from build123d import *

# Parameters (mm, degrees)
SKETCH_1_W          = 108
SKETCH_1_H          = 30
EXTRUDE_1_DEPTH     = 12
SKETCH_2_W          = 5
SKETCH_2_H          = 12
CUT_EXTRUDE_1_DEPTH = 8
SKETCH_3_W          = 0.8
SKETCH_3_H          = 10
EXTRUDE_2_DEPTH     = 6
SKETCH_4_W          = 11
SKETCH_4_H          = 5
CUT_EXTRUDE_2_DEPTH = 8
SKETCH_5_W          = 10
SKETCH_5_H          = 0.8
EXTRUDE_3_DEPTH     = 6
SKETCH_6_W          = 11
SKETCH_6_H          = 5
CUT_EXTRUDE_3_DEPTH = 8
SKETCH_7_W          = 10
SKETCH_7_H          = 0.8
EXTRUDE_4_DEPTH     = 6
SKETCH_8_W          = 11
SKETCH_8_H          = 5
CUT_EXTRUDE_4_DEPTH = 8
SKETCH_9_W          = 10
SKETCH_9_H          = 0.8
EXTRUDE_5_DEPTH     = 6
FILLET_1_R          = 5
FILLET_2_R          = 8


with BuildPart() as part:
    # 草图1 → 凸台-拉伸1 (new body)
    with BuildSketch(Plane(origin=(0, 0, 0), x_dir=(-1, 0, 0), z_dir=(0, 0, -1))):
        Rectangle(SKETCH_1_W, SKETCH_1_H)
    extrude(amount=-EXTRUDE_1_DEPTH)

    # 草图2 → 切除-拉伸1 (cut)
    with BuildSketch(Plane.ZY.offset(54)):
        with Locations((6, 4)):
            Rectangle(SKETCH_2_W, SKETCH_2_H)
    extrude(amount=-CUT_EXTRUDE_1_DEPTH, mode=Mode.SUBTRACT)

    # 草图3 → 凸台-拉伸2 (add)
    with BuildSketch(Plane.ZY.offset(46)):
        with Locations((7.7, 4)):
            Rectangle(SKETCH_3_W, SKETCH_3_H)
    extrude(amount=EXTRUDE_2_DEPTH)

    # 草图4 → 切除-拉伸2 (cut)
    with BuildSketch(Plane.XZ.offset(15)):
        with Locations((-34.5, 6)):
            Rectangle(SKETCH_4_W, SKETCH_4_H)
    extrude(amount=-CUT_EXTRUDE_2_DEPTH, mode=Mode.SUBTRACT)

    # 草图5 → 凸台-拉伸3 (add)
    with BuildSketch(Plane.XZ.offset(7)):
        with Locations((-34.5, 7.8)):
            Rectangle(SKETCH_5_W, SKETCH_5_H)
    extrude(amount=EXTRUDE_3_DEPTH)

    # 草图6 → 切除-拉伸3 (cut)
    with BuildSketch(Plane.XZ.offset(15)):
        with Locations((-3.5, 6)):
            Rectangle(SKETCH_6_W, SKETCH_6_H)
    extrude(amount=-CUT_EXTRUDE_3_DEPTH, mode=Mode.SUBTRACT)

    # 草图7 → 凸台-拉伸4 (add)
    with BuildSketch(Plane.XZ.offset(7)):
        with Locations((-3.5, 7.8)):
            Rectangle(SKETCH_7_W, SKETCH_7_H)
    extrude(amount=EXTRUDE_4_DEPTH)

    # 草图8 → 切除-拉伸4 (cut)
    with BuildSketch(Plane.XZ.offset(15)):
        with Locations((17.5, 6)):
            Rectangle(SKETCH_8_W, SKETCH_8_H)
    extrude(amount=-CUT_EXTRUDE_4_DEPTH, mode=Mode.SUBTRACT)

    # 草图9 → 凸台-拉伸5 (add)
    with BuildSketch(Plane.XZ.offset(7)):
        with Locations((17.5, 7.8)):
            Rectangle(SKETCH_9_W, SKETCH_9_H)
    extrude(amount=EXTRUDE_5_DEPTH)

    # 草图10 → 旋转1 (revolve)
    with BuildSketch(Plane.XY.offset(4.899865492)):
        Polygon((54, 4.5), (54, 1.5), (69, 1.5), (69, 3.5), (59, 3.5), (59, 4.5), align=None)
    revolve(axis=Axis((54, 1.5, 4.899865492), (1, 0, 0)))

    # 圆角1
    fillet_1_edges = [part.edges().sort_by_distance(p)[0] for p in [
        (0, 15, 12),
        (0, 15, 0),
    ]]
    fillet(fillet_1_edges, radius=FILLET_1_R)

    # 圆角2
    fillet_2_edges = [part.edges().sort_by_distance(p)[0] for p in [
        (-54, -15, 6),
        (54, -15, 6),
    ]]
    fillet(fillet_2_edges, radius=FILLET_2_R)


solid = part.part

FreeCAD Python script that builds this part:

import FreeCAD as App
import Part
import Sketcher
from FreeCAD import Vector
Q = App.Units.Quantity


def edges_at(feature, points):
    """Names of the edges that pass closest to the given points."""
    edges = feature.Shape.Edges
    near = lambda p: min(range(len(edges)), key=lambda i: edges[i].distToShape(Part.Vertex(*p))[0])
    return sorted({f"Edge{near(p) + 1}" for p in points})

doc = App.newDocument("Part")
params = doc.addObject("Spreadsheet::Sheet", "Params")
for row, (alias, value) in enumerate([
    ("sketch1_width", "108 mm"),
    ("sketch1_height", "30 mm"),
    ("pad1_length", "12 mm"),
    ("sketch2_width", "12 mm"),
    ("sketch2_height", "5 mm"),
    ("pocket1_length", "8 mm"),
    ("sketch3_width", "10 mm"),
    ("sketch3_height", "0.8 mm"),
    ("pad2_length", "6 mm"),
    ("sketch4_width", "11 mm"),
    ("sketch4_height", "5 mm"),
    ("pocket2_length", "8 mm"),
    ("sketch5_width", "10 mm"),
    ("sketch5_height", "0.8 mm"),
    ("pad3_length", "6 mm"),
    ("sketch6_width", "11 mm"),
    ("sketch6_height", "5 mm"),
    ("pocket3_length", "8 mm"),
    ("sketch7_width", "10 mm"),
    ("sketch7_height", "0.8 mm"),
    ("pad4_length", "6 mm"),
    ("sketch8_width", "11 mm"),
    ("sketch8_height", "5 mm"),
    ("pocket4_length", "8 mm"),
    ("sketch9_width", "10 mm"),
    ("sketch9_height", "0.8 mm"),
    ("pad5_length", "6 mm"),
    ("sketch10_width", "15 mm"),
    ("sketch10_width2", "10 mm"),
    ("sketch10_height", "3 mm"),
    ("sketch10_height2", "2 mm"),
    ("revolution_angle", "360 deg"),
    ("fillet_radius", "5 mm"),
    ("fillet2_radius", "8 mm"),
], start=1):
    params.set(f"A{row}", alias)
    params.set(f"B{row}", "=" + value)
    params.setAlias(f"B{row}", alias)

body = doc.addObject("PartDesign::Body", "Body")

# Sketch on XY plane
sketch1 = body.newObject("Sketcher::SketchObject", "Sketch")
sketch1.AttachmentSupport = (doc.getObject("XY_Plane"), [""])
sketch1.MapMode = "FlatFace"
sketch1.addGeometry(Part.LineSegment(Vector(54, 15, 0), Vector(54, -15, 0)), False)
sketch1.addGeometry(Part.LineSegment(Vector(54, -15, 0), Vector(-54, -15, 0)), False)
sketch1.addGeometry(Part.LineSegment(Vector(-54, -15, 0), Vector(-54, 15, 0)), False)
sketch1.addGeometry(Part.LineSegment(Vector(-54, 15, 0), Vector(54, 15, 0)), False)
sketch1.addConstraint(Sketcher.Constraint("Coincident", 0, 2, 1, 1))
sketch1.addConstraint(Sketcher.Constraint("Coincident", 1, 2, 2, 1))
sketch1.addConstraint(Sketcher.Constraint("Coincident", 2, 2, 3, 1))
sketch1.addConstraint(Sketcher.Constraint("Coincident", 3, 2, 0, 1))
sketch1.addConstraint(Sketcher.Constraint("Vertical", 0))
sketch1.addConstraint(Sketcher.Constraint("Horizontal", 1))
sketch1.addConstraint(Sketcher.Constraint("Vertical", 2))
sketch1.addConstraint(Sketcher.Constraint("Horizontal", 3))
sketch1.addConstraint(Sketcher.Constraint("Symmetric", 0, 2, 2, 2, -1, 1))
sketch1.addConstraint(Sketcher.Constraint("DistanceX", 1, 2, 1, 1, Q("108 mm")))
sketch1.addConstraint(Sketcher.Constraint("DistanceY", 0, 2, 0, 1, Q("30 mm")))
sketch1.setExpression("Constraints[9]", "Params.sketch1_width")
sketch1.setExpression("Constraints[10]", "Params.sketch1_height")
pad1 = body.newObject("PartDesign::Pad", "Pad")
pad1.Profile = sketch1
pad1.setExpression("Length", "Params.pad1_length")

# Sketch on YZ plane
sketch2 = body.newObject("Sketcher::SketchObject", "Sketch001")
sketch2.AttachmentSupport = (doc.getObject("YZ_Plane"), [""])
sketch2.MapMode = "FlatFace"
sketch2.AttachmentOffset = App.Placement(Vector(0, 0, -54), App.Rotation())
sketch2.addGeometry(Part.LineSegment(Vector(10, 4, 0), Vector(-2, 4, 0)), False)
sketch2.addGeometry(Part.LineSegment(Vector(-2, 4, 0), Vector(-2, 8, 0)), False)
sketch2.addGeometry(Part.LineSegment(Vector(-2, 8, 0), Vector(10, 8, 0)), False)
sketch2.addGeometry(Part.LineSegment(Vector(10, 8, 0), Vector(10, 4, 0)), False)
sketch2.addConstraint(Sketcher.Constraint("Coincident", 0, 2, 1, 1))
sketch2.addConstraint(Sketcher.Constraint("Coincident", 1, 2, 2, 1))
sketch2.addConstraint(Sketcher.Constraint("Coincident", 2, 2, 3, 1))
sketch2.addConstraint(Sketcher.Constraint("Coincident", 3, 2, 0, 1))
sketch2.addConstraint(Sketcher.Constraint("Horizontal", 0))
sketch2.addConstraint(Sketcher.Constraint("Vertical", 1))
sketch2.addConstraint(Sketcher.Constraint("Horizontal", 2))
sketch2.addConstraint(Sketcher.Constraint("Vertical", 3))
sketch2.addConstraint(Sketcher.Constraint("DistanceX", 0, 2, 0, 1, Q("12 mm")))
sketch2.addConstraint(Sketcher.Constraint("DistanceY", 1, 1, 1, 2, Q("5 mm")))
sketch2.addConstraint(Sketcher.Constraint("DistanceX", 0, 2, -1, 1, Q("2 mm")))
sketch2.addConstraint(Sketcher.Constraint("DistanceY", -1, 1, 0, 2, Q("3.5 mm")))
sketch2.setExpression("Constraints[8]", "Params.sketch2_width")
sketch2.setExpression("Constraints[9]", "Params.sketch2_height")
pocket1 = body.newObject("PartDesign::Pocket", "Pocket")
pocket1.Profile = sketch2
pocket1.setExpression("Length", "Params.pocket1_length")
pocket1.Reversed = True

# Sketch on YZ plane
sketch3 = body.newObject("Sketcher::SketchObject", "Sketch002")
sketch3.AttachmentSupport = (doc.getObject("YZ_Plane"), [""])
sketch3.MapMode = "FlatFace"
sketch3.AttachmentOffset = App.Placement(Vector(0, 0, -46), App.Rotation())
sketch3.addGeometry(Part.LineSegment(Vector(9, 7.3, 0), Vector(-1, 7.3, 0)), False)
sketch3.addGeometry(Part.LineSegment(Vector(-1, 7.3, 0), Vector(-1, 8.1, 0)), False)
sketch3.addGeometry(Part.LineSegment(Vector(-1, 8.1, 0), Vector(9, 8.1, 0)), False)
sketch3.addGeometry(Part.LineSegment(Vector(9, 8.1, 0), Vector(9, 7.3, 0)), False)
sketch3.addConstraint(Sketcher.Constraint("Coincident", 0, 2, 1, 1))
sketch3.addConstraint(Sketcher.Constraint("Coincident", 1, 2, 2, 1))
sketch3.addConstraint(Sketcher.Constraint("Coincident", 2, 2, 3, 1))
sketch3.addConstraint(Sketcher.Constraint("Coincident", 3, 2, 0, 1))
sketch3.addConstraint(Sketcher.Constraint("Horizontal", 0))
sketch3.addConstraint(Sketcher.Constraint("Vertical", 1))
sketch3.addConstraint(Sketcher.Constraint("Horizontal", 2))
sketch3.addConstraint(Sketcher.Constraint("Vertical", 3))
sketch3.addConstraint(Sketcher.Constraint("DistanceX", 0, 2, 0, 1, Q("10 mm")))
sketch3.addConstraint(Sketcher.Constraint("DistanceY", 1, 1, 1, 2, Q("0.8 mm")))
sketch3.addConstraint(Sketcher.Constraint("DistanceX", 0, 2, -1, 1, Q("1 mm")))
sketch3.addConstraint(Sketcher.Constraint("DistanceY", -1, 1, 0, 2, Q("7.3 mm")))
sketch3.setExpression("Constraints[8]", "Params.sketch3_width")
sketch3.setExpression("Constraints[9]", "Params.sketch3_height")
pad2 = body.newObject("PartDesign::Pad", "Pad001")
pad2.Profile = sketch3
pad2.setExpression("Length", "Params.pad2_length")
pad2.Reversed = True

# Sketch on XZ plane
sketch4 = body.newObject("Sketcher::SketchObject", "Sketch003")
sketch4.AttachmentSupport = (doc.getObject("XZ_Plane"), [""])
sketch4.MapMode = "FlatFace"
sketch4.AttachmentOffset = App.Placement(Vector(0, 0, 15), App.Rotation())
sketch4.addGeometry(Part.LineSegment(Vector(-40, 8, 0), Vector(-40, 4, 0)), False)
sketch4.addGeometry(Part.LineSegment(Vector(-40, 4, 0), Vector(-29, 4, 0)), False)
sketch4.addGeometry(Part.LineSegment(Vector(-29, 4, 0), Vector(-29, 8, 0)), False)
sketch4.addGeometry(Part.LineSegment(Vector(-29, 8, 0), Vector(-40, 8, 0)), False)
sketch4.addConstraint(Sketcher.Constraint("Coincident", 0, 2, 1, 1))
sketch4.addConstraint(Sketcher.Constraint("Coincident", 1, 2, 2, 1))
sketch4.addConstraint(Sketcher.Constraint("Coincident", 2, 2, 3, 1))
sketch4.addConstraint(Sketcher.Constraint("Coincident", 3, 2, 0, 1))
sketch4.addConstraint(Sketcher.Constraint("Vertical", 0))
sketch4.addConstraint(Sketcher.Constraint("Horizontal", 1))
sketch4.addConstraint(Sketcher.Constraint("Vertical", 2))
sketch4.addConstraint(Sketcher.Constraint("Horizontal", 3))
sketch4.addConstraint(Sketcher.Constraint("DistanceX", 1, 1, 1, 2, Q("11 mm")))
sketch4.addConstraint(Sketcher.Constraint("DistanceY", 0, 2, 0, 1, Q("5 mm")))
sketch4.addConstraint(Sketcher.Constraint("DistanceX", 0, 2, -1, 1, Q("40 mm")))
sketch4.addConstraint(Sketcher.Constraint("DistanceY", -1, 1, 0, 2, Q("3.5 mm")))
sketch4.setExpression("Constraints[8]", "Params.sketch4_width")
sketch4.setExpression("Constraints[9]", "Params.sketch4_height")
pocket2 = body.newObject("PartDesign::Pocket", "Pocket001")
pocket2.Profile = sketch4
pocket2.setExpression("Length", "Params.pocket2_length")

# Sketch on XZ plane
sketch5 = body.newObject("Sketcher::SketchObject", "Sketch004")
sketch5.AttachmentSupport = (doc.getObject("XZ_Plane"), [""])
sketch5.MapMode = "FlatFace"
sketch5.AttachmentOffset = App.Placement(Vector(0, 0, 7), App.Rotation())
sketch5.addGeometry(Part.LineSegment(Vector(-39.5, 8.2, 0), Vector(-39.5, 7.4, 0)), False)
sketch5.addGeometry(Part.LineSegment(Vector(-39.5, 7.4, 0), Vector(-29.5, 7.4, 0)), False)
sketch5.addGeometry(Part.LineSegment(Vector(-29.5, 7.4, 0), Vector(-29.5, 8.2, 0)), False)
sketch5.addGeometry(Part.LineSegment(Vector(-29.5, 8.2, 0), Vector(-39.5, 8.2, 0)), False)
sketch5.addConstraint(Sketcher.Constraint("Coincident", 0, 2, 1, 1))
sketch5.addConstraint(Sketcher.Constraint("Coincident", 1, 2, 2, 1))
sketch5.addConstraint(Sketcher.Constraint("Coincident", 2, 2, 3, 1))
sketch5.addConstraint(Sketcher.Constraint("Coincident", 3, 2, 0, 1))
sketch5.addConstraint(Sketcher.Constraint("Vertical", 0))
sketch5.addConstraint(Sketcher.Constraint("Horizontal", 1))
sketch5.addConstraint(Sketcher.Constraint("Vertical", 2))
sketch5.addConstraint(Sketcher.Constraint("Horizontal", 3))
sketch5.addConstraint(Sketcher.Constraint("DistanceX", 1, 1, 1, 2, Q("10 mm")))
sketch5.addConstraint(Sketcher.Constraint("DistanceY", 0, 2, 0, 1, Q("0.8 mm")))
sketch5.addConstraint(Sketcher.Constraint("DistanceX", 0, 2, -1, 1, Q("39.5 mm")))
sketch5.addConstraint(Sketcher.Constraint("DistanceY", -1, 1, 0, 2, Q("7.4 mm")))
sketch5.setExpression("Constraints[8]", "Params.sketch5_width")
sketch5.setExpression("Constraints[9]", "Params.sketch5_height")
pad3 = body.newObject("PartDesign::Pad", "Pad002")
pad3.Profile = sketch5
pad3.setExpression("Length", "Params.pad3_length")

# Sketch on XZ plane
sketch6 = body.newObject("Sketcher::SketchObject", "Sketch005")
sketch6.AttachmentSupport = (doc.getObject("XZ_Plane"), [""])
sketch6.MapMode = "FlatFace"
sketch6.AttachmentOffset = App.Placement(Vector(0, 0, 15), App.Rotation())
sketch6.addGeometry(Part.LineSegment(Vector(-9, 8, 0), Vector(-9, 4, 0)), False)
sketch6.addGeometry(Part.LineSegment(Vector(-9, 4, 0), Vector(2, 4, 0)), False)
sketch6.addGeometry(Part.LineSegment(Vector(2, 4, 0), Vector(2, 8, 0)), False)
sketch6.addGeometry(Part.LineSegment(Vector(2, 8, 0), Vector(-9, 8, 0)), False)
sketch6.addConstraint(Sketcher.Constraint("Coincident", 0, 2, 1, 1))
sketch6.addConstraint(Sketcher.Constraint("Coincident", 1, 2, 2, 1))
sketch6.addConstraint(Sketcher.Constraint("Coincident", 2, 2, 3, 1))
sketch6.addConstraint(Sketcher.Constraint("Coincident", 3, 2, 0, 1))
sketch6.addConstraint(Sketcher.Constraint("Vertical", 0))
sketch6.addConstraint(Sketcher.Constraint("Horizontal", 1))
sketch6.addConstraint(Sketcher.Constraint("Vertical", 2))
sketch6.addConstraint(Sketcher.Constraint("Horizontal", 3))
sketch6.addConstraint(Sketcher.Constraint("DistanceX", 1, 1, 1, 2, Q("11 mm")))
sketch6.addConstraint(Sketcher.Constraint("DistanceY", 0, 2, 0, 1, Q("5 mm")))
sketch6.addConstraint(Sketcher.Constraint("DistanceX", 0, 2, -1, 1, Q("9 mm")))
sketch6.addConstraint(Sketcher.Constraint("DistanceY", -1, 1, 0, 2, Q("3.5 mm")))
sketch6.setExpression("Constraints[8]", "Params.sketch6_width")
sketch6.setExpression("Constraints[9]", "Params.sketch6_height")
pocket3 = body.newObject("PartDesign::Pocket", "Pocket002")
pocket3.Profile = sketch6
pocket3.setExpression("Length", "Params.pocket3_length")

# Sketch on XZ plane
sketch7 = body.newObject("Sketcher::SketchObject", "Sketch006")
sketch7.AttachmentSupport = (doc.getObject("XZ_Plane"), [""])
sketch7.MapMode = "FlatFace"
sketch7.AttachmentOffset = App.Placement(Vector(0, 0, 7), App.Rotation())
sketch7.addGeometry(Part.LineSegment(Vector(-8.5, 8.2, 0), Vector(-8.5, 7.4, 0)), False)
sketch7.addGeometry(Part.LineSegment(Vector(-8.5, 7.4, 0), Vector(1.5, 7.4, 0)), False)
sketch7.addGeometry(Part.LineSegment(Vector(1.5, 7.4, 0), Vector(1.5, 8.2, 0)), False)
sketch7.addGeometry(Part.LineSegment(Vector(1.5, 8.2, 0), Vector(-8.5, 8.2, 0)), False)
sketch7.addConstraint(Sketcher.Constraint("Coincident", 0, 2, 1, 1))
sketch7.addConstraint(Sketcher.Constraint("Coincident", 1, 2, 2, 1))
sketch7.addConstraint(Sketcher.Constraint("Coincident", 2, 2, 3, 1))
sketch7.addConstraint(Sketcher.Constraint("Coincident", 3, 2, 0, 1))
sketch7.addConstraint(Sketcher.Constraint("Vertical", 0))
sketch7.addConstraint(Sketcher.Constraint("Horizontal", 1))
sketch7.addConstraint(Sketcher.Constraint("Vertical", 2))
sketch7.addConstraint(Sketcher.Constraint("Horizontal", 3))
sketch7.addConstraint(Sketcher.Constraint("DistanceX", 1, 1, 1, 2, Q("10 mm")))
sketch7.addConstraint(Sketcher.Constraint("DistanceY", 0, 2, 0, 1, Q("0.8 mm")))
sketch7.addConstraint(Sketcher.Constraint("DistanceX", 0, 2, -1, 1, Q("8.5 mm")))
sketch7.addConstraint(Sketcher.Constraint("DistanceY", -1, 1, 0, 2, Q("7.4 mm")))
sketch7.setExpression("Constraints[8]", "Params.sketch7_width")
sketch7.setExpression("Constraints[9]", "Params.sketch7_height")
pad4 = body.newObject("PartDesign::Pad", "Pad003")
pad4.Profile = sketch7
pad4.setExpression("Length", "Params.pad4_length")

# Sketch on XZ plane
sketch8 = body.newObject("Sketcher::SketchObject", "Sketch007")
sketch8.AttachmentSupport = (doc.getObject("XZ_Plane"), [""])
sketch8.MapMode = "FlatFace"
sketch8.AttachmentOffset = App.Placement(Vector(0, 0, 15), App.Rotation())
sketch8.addGeometry(Part.LineSegment(Vector(12, 8, 0), Vector(12, 4, 0)), False)
sketch8.addGeometry(Part.LineSegment(Vector(12, 4, 0), Vector(23, 4, 0)), False)
sketch8.addGeometry(Part.LineSegment(Vector(23, 4, 0), Vector(23, 8, 0)), False)
sketch8.addGeometry(Part.LineSegment(Vector(23, 8, 0), Vector(12, 8, 0)), False)
sketch8.addConstraint(Sketcher.Constraint("Coincident", 0, 2, 1, 1))
sketch8.addConstraint(Sketcher.Constraint("Coincident", 1, 2, 2, 1))
sketch8.addConstraint(Sketcher.Constraint("Coincident", 2, 2, 3, 1))
sketch8.addConstraint(Sketcher.Constraint("Coincident", 3, 2, 0, 1))
sketch8.addConstraint(Sketcher.Constraint("Vertical", 0))
sketch8.addConstraint(Sketcher.Constraint("Horizontal", 1))
sketch8.addConstraint(Sketcher.Constraint("Vertical", 2))
sketch8.addConstraint(Sketcher.Constraint("Horizontal", 3))
sketch8.addConstraint(Sketcher.Constraint("DistanceX", 1, 1, 1, 2, Q("11 mm")))
sketch8.addConstraint(Sketcher.Constraint("DistanceY", 0, 2, 0, 1, Q("5 mm")))
sketch8.addConstraint(Sketcher.Constraint("DistanceX", -1, 1, 0, 2, Q("12 mm")))
sketch8.addConstraint(Sketcher.Constraint("DistanceY", -1, 1, 0, 2, Q("3.5 mm")))
sketch8.setExpression("Constraints[8]", "Params.sketch8_width")
sketch8.setExpression("Constraints[9]", "Params.sketch8_height")
pocket4 = body.newObject("PartDesign::Pocket", "Pocket003")
pocket4.Profile = sketch8
pocket4.setExpression("Length", "Params.pocket4_length")

# Sketch on XZ plane
sketch9 = body.newObject("Sketcher::SketchObject", "Sketch008")
sketch9.AttachmentSupport = (doc.getObject("XZ_Plane"), [""])
sketch9.MapMode = "FlatFace"
sketch9.AttachmentOffset = App.Placement(Vector(0, 0, 7), App.Rotation())
sketch9.addGeometry(Part.LineSegment(Vector(12.5, 8.2, 0), Vector(12.5, 7.4, 0)), False)
sketch9.addGeometry(Part.LineSegment(Vector(12.5, 7.4, 0), Vector(22.5, 7.4, 0)), False)
sketch9.addGeometry(Part.LineSegment(Vector(22.5, 7.4, 0), Vector(22.5, 8.2, 0)), False)
sketch9.addGeometry(Part.LineSegment(Vector(22.5, 8.2, 0), Vector(12.5, 8.2, 0)), False)
sketch9.addConstraint(Sketcher.Constraint("Coincident", 0, 2, 1, 1))
sketch9.addConstraint(Sketcher.Constraint("Coincident", 1, 2, 2, 1))
sketch9.addConstraint(Sketcher.Constraint("Coincident", 2, 2, 3, 1))
sketch9.addConstraint(Sketcher.Constraint("Coincident", 3, 2, 0, 1))
sketch9.addConstraint(Sketcher.Constraint("Vertical", 0))
sketch9.addConstraint(Sketcher.Constraint("Horizontal", 1))
sketch9.addConstraint(Sketcher.Constraint("Vertical", 2))
sketch9.addConstraint(Sketcher.Constraint("Horizontal", 3))
sketch9.addConstraint(Sketcher.Constraint("DistanceX", 1, 1, 1, 2, Q("10 mm")))
sketch9.addConstraint(Sketcher.Constraint("DistanceY", 0, 2, 0, 1, Q("0.8 mm")))
sketch9.addConstraint(Sketcher.Constraint("DistanceX", -1, 1, 0, 2, Q("12.5 mm")))
sketch9.addConstraint(Sketcher.Constraint("DistanceY", -1, 1, 0, 2, Q("7.4 mm")))
sketch9.setExpression("Constraints[8]", "Params.sketch9_width")
sketch9.setExpression("Constraints[9]", "Params.sketch9_height")
pad5 = body.newObject("PartDesign::Pad", "Pad004")
pad5.Profile = sketch9
pad5.setExpression("Length", "Params.pad5_length")

# Sketch on XY plane
sketch10 = body.newObject("Sketcher::SketchObject", "Sketch009")
sketch10.AttachmentSupport = (doc.getObject("XY_Plane"), [""])
sketch10.MapMode = "FlatFace"
sketch10.AttachmentOffset = App.Placement(Vector(0, 0, 4.899865), App.Rotation())
sketch10.addGeometry(Part.LineSegment(Vector(54, 4.5, 0), Vector(54, 1.5, 0)), False)
sketch10.addGeometry(Part.LineSegment(Vector(54, 1.5, 0), Vector(69, 1.5, 0)), False)
sketch10.addGeometry(Part.LineSegment(Vector(69, 1.5, 0), Vector(69, 3.5, 0)), False)
sketch10.addGeometry(Part.LineSegment(Vector(69, 3.5, 0), Vector(59, 3.5, 0)), False)
sketch10.addGeometry(Part.LineSegment(Vector(59, 3.5, 0), Vector(59, 4.5, 0)), False)
sketch10.addGeometry(Part.LineSegment(Vector(59, 4.5, 0), Vector(54, 4.5, 0)), False)
sketch10.addGeometry(Part.LineSegment(Vector(54, 1.5, 0), Vector(69, 1.5, 0)), True)  # axis
sketch10.addConstraint(Sketcher.Constraint("Coincident", 0, 2, 1, 1))
sketch10.addConstraint(Sketcher.Constraint("Coincident", 1, 2, 2, 1))
sketch10.addConstraint(Sketcher.Constraint("Coincident", 2, 2, 3, 1))
sketch10.addConstraint(Sketcher.Constraint("Coincident", 3, 2, 4, 1))
sketch10.addConstraint(Sketcher.Constraint("Coincident", 4, 2, 5, 1))
sketch10.addConstraint(Sketcher.Constraint("Coincident", 5, 2, 0, 1))
sketch10.addConstraint(Sketcher.Constraint("Vertical", 0))
sketch10.addConstraint(Sketcher.Constraint("Horizontal", 1))
sketch10.addConstraint(Sketcher.Constraint("Vertical", 2))
sketch10.addConstraint(Sketcher.Constraint("Horizontal", 3))
sketch10.addConstraint(Sketcher.Constraint("Vertical", 4))
sketch10.addConstraint(Sketcher.Constraint("Horizontal", 5))
sketch10.addConstraint(Sketcher.Constraint("Horizontal", 6))
sketch10.addConstraint(Sketcher.Constraint("Coincident", 6, 1, 0, 2))
sketch10.addConstraint(Sketcher.Constraint("Vertical", 2, 2, 6, 2))
sketch10.addConstraint(Sketcher.Constraint("DistanceX", 1, 1, 1, 2, Q("15 mm")))
sketch10.addConstraint(Sketcher.Constraint("DistanceX", 3, 2, 3, 1, Q("10 mm")))
sketch10.addConstraint(Sketcher.Constraint("DistanceY", 0, 2, 0, 1, Q("3 mm")))
sketch10.addConstraint(Sketcher.Constraint("DistanceY", 2, 1, 2, 2, Q("2 mm")))
sketch10.addConstraint(Sketcher.Constraint("DistanceX", -1, 1, 0, 2, Q("54 mm")))
sketch10.addConstraint(Sketcher.Constraint("DistanceY", -1, 1, 0, 2, Q("1.5 mm")))
sketch10.setExpression("Constraints[15]", "Params.sketch10_width")
sketch10.setExpression("Constraints[16]", "Params.sketch10_width2")
sketch10.setExpression("Constraints[17]", "Params.sketch10_height")
sketch10.setExpression("Constraints[18]", "Params.sketch10_height2")
revolution = body.newObject("PartDesign::Revolution", "Revolution")
revolution.Profile = sketch10
revolution.ReferenceAxis = (sketch10, ["Axis0"])
revolution.setExpression("Angle", "Params.revolution_angle")
doc.recompute()

fillet = body.newObject("PartDesign::Fillet", "Fillet")
fillet.Base = (revolution, edges_at(revolution, [(0, 15, 12), (0, 15, 0)]))
fillet.setExpression("Radius", "Params.fillet_radius")
doc.recompute()

fillet2 = body.newObject("PartDesign::Fillet", "Fillet001")
fillet2.Base = (fillet, edges_at(fillet, [(-54, -15, 6), (54, -15, 6)]))
fillet2.setExpression("Radius", "Params.fillet2_radius")

doc.recompute()
